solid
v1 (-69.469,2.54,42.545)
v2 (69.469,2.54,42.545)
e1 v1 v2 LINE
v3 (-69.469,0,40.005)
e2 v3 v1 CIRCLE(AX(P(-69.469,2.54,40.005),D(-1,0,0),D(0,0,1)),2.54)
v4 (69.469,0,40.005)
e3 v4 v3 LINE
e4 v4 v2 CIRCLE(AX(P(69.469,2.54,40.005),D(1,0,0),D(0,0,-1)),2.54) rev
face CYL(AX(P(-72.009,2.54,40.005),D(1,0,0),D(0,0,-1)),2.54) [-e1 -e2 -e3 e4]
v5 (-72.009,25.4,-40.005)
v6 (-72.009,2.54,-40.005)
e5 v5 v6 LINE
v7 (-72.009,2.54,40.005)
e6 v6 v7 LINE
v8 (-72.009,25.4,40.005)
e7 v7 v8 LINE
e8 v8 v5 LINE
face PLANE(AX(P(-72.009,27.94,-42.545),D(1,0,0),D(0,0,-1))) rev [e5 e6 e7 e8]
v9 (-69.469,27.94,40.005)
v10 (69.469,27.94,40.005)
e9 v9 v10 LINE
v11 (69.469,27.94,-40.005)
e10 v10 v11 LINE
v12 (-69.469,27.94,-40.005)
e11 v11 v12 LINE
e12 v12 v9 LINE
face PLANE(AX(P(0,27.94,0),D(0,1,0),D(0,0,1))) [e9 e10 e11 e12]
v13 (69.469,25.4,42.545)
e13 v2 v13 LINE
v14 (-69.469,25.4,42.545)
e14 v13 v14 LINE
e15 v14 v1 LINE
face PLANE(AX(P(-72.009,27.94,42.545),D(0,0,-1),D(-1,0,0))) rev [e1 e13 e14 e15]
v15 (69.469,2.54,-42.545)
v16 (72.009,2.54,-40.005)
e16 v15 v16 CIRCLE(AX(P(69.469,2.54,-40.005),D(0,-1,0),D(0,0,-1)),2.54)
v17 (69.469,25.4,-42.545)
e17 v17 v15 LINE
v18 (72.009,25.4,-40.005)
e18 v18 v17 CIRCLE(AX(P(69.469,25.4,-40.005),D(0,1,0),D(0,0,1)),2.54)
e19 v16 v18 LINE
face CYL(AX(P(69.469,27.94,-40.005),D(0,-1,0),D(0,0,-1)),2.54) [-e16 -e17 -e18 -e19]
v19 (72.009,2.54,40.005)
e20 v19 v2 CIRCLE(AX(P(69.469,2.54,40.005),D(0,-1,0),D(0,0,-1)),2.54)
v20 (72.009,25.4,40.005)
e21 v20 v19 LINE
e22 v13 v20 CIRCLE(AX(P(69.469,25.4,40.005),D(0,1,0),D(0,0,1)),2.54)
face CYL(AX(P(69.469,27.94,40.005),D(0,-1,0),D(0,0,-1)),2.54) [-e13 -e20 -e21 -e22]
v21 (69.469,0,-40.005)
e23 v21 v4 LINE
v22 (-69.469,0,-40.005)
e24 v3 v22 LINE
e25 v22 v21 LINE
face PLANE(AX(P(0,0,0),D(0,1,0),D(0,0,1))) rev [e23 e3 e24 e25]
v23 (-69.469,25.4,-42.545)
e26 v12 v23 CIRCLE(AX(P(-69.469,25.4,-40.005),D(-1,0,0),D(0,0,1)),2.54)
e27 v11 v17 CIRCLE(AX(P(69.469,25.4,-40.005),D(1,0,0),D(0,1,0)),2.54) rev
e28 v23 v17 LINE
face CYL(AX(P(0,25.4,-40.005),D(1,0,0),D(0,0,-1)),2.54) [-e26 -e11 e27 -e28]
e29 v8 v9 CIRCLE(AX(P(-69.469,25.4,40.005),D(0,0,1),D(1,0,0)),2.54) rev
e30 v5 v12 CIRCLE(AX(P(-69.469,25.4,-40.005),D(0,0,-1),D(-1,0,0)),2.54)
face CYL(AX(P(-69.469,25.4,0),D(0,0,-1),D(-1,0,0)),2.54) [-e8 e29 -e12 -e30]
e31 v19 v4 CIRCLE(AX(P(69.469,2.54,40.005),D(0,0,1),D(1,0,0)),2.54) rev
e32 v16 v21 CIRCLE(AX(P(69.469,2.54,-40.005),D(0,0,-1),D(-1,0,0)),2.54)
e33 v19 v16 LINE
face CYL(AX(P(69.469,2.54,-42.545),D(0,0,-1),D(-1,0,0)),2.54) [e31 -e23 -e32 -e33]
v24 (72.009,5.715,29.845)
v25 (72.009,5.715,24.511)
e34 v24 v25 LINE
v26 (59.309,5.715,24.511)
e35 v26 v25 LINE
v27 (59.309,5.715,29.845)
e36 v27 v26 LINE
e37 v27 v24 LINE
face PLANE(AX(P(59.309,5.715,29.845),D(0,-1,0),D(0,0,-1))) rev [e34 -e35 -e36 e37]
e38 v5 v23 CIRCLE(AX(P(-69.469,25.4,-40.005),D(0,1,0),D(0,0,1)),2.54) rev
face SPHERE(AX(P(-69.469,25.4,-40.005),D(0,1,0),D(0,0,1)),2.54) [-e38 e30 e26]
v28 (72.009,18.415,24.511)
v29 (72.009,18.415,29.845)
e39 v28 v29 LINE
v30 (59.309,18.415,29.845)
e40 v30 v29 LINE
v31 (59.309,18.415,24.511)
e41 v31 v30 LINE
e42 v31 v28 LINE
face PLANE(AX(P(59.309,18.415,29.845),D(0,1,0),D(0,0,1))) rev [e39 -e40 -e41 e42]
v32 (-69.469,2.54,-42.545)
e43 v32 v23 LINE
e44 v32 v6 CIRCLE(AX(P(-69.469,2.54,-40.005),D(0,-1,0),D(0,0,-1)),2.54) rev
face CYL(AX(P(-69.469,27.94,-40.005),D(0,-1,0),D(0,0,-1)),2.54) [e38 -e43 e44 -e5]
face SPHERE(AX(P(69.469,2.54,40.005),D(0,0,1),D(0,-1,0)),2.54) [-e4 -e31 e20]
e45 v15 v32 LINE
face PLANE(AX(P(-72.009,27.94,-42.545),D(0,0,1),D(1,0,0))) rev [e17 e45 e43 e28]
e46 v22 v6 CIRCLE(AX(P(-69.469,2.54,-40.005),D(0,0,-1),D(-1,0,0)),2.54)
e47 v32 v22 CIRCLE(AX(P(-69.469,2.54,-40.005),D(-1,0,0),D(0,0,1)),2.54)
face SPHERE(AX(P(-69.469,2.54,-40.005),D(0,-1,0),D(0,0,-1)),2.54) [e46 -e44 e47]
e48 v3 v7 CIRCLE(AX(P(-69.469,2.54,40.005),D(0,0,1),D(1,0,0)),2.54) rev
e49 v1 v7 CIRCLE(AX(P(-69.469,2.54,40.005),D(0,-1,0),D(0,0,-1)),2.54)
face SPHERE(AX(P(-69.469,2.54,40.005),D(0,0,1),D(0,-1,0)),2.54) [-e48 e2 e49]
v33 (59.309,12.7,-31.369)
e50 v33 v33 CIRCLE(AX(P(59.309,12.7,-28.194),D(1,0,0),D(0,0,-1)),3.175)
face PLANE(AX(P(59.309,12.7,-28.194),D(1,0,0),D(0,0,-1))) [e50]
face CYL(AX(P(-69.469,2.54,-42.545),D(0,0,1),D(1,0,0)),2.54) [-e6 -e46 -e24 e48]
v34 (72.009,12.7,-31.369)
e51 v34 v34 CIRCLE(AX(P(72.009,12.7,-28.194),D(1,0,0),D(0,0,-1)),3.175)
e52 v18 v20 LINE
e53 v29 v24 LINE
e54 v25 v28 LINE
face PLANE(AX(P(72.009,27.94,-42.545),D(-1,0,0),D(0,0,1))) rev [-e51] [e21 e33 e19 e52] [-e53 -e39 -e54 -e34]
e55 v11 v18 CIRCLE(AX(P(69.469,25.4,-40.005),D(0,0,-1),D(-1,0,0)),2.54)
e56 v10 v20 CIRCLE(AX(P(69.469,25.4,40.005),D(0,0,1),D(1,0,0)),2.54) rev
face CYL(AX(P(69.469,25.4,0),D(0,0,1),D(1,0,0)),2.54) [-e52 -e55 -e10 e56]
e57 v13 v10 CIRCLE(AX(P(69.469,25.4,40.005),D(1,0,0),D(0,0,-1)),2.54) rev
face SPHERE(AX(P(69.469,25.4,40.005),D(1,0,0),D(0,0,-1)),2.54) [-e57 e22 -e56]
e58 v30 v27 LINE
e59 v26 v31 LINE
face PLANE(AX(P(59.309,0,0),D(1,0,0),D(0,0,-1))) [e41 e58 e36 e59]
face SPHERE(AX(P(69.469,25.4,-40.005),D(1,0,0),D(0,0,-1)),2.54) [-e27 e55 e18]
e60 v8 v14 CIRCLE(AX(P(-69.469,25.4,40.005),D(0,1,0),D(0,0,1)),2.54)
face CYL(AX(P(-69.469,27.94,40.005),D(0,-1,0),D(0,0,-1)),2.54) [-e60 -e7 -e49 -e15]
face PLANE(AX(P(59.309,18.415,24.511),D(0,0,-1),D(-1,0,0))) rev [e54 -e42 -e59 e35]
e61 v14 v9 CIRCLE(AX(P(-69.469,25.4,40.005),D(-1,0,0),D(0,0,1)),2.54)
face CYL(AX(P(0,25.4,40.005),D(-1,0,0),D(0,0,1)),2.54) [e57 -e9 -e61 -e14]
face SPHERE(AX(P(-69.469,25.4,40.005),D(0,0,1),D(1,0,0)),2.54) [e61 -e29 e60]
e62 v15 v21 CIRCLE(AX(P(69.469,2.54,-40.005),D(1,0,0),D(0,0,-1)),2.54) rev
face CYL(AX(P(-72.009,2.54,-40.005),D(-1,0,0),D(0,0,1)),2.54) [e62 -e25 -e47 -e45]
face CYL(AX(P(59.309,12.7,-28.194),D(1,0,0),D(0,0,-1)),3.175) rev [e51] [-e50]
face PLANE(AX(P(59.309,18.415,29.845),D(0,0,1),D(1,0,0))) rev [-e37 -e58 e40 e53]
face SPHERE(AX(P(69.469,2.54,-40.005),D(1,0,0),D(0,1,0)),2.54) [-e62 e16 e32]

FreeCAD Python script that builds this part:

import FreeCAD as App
import Part
import Sketcher
from FreeCAD import Vector
Q = App.Units.Quantity


def add_polygon(sketch, points):
    """Adds a closed chain of lines whose ends are joined by coincident constraints."""
    first, n = sketch.GeometryCount, len(points)
    for a, b in zip(points, points[1:] + points[:1]):
        sketch.addGeometry(Part.LineSegment(App.Vector(*a, 0), App.Vector(*b, 0)), False)
    for i in range(n):
        sketch.addConstraint(Sketcher.Constraint("Coincident", first + i, 2, first + (i + 1) % n, 1))

doc = App.newDocument("Part")
params = doc.addObject("Spreadsheet::Sheet", "Params")
for row, (alias, value) in enumerate([
    ("sketch1_width", "5.67 in"),
    ("sketch1_height", "3.35 in"),
    ("pad1_length", "1.1 in"),
    ("fillet_radius", "0.1 in"),
    ("sketch2_diameter", "0.25 in"),
    ("sketch2_width", "0.5 in"),
    ("sketch2_height", "0.21 in"),
    ("pocket1_length", "0.5 in"),
], start=1):
    params.set(f"A{row}", alias)
    params.set(f"B{row}", "=" + value)
    params.setAlias(f"B{row}", alias)

body = doc.addObject("PartDesign::Body", "Body")

# Sketch on XZ plane
sketch1 = body.newObject("Sketcher::SketchObject", "Sketch")
sketch1.AttachmentSupport = (doc.getObject("XZ_Plane"), [""])
sketch1.MapMode = "FlatFace"
add_polygon(sketch1, [(-72, -43), (-72, 43), (72, 43), (72, -43)])  # lines 0-3
sketch1.addConstraint([
    Sketcher.Constraint("Vertical", 0),
    Sketcher.Constraint("Horizontal", 1),
    Sketcher.Constraint("Vertical", 2),
    Sketcher.Constraint("Horizontal", 3),
    Sketcher.Constraint("Symmetric", 0, 2, 2, 2, -1, 1),
    Sketcher.Constraint("DistanceX", 1, 1, 1, 2, Q("5.67 in")),
    Sketcher.Constraint("DistanceY", 0, 1, 0, 2, Q("3.35 in")),
])
sketch1.setExpression("Constraints[9]", "Params.sketch1_width")
sketch1.setExpression("Constraints[10]", "Params.sketch1_height")
pad1 = body.newObject("PartDesign::Pad", "Pad")
pad1.Profile = sketch1
pad1.setExpression("Length", "Params.pad1_length")
pad1.Reversed = True
doc.recompute()

fillet = body.newObject("PartDesign::Fillet", "Fillet")
fillet.Base = (pad1, ["Edge1"])
fillet.UseAllEdges = True
fillet.setExpression("Radius", "Params.fillet_radius")

# Sketch on YZ plane
sketch2 = body.newObject("Sketcher::SketchObject", "Sketch001")
sketch2.AttachmentSupport = (doc.getObject("YZ_Plane"), [""])
sketch2.MapMode = "FlatFace"
sketch2.AttachmentOffset = App.Placement(Vector(0, 0, 2.835 * 25.4), App.Rotation())
sketch2.addGeometry(Part.Circle(Vector(12.7, -28.2, 0), Vector(0, 0, 1), 3.2), False)  # 0
add_polygon(sketch2, [(18.4, 29.8), (5.7, 29.8), (5.7, 24.5), (18.4, 24.5)])  # lines 1-4
sketch2.addConstraint([
    Sketcher.Constraint("Horizontal", 1),
    Sketcher.Constraint("Vertical", 2),
    Sketcher.Constraint("Horizontal", 3),
    Sketcher.Constraint("Vertical", 4),
    Sketcher.Constraint("Diameter", 0, Q("0.25 in")),
    Sketcher.Constraint("DistanceX", 1, 2, 1, 1, Q("0.5 in")),
    Sketcher.Constraint("DistanceY", 2, 2, 2, 1, Q("0.21 in")),
    Sketcher.Constraint("DistanceX", -1, 1, 0, 3, Q("0.5 in")),
    Sketcher.Constraint("DistanceY", 0, 3, -1, 1, Q("1.11 in")),
    Sketcher.Constraint("DistanceX", -1, 1, 1, 2, Q("0.225 in")),
    Sketcher.Constraint("DistanceY", -1, 1, 1, 2, Q("1.175 in")),
])
sketch2.setExpression("Constraints[8]", "Params.sketch2_diameter")
sketch2.setExpression("Constraints[9]", "Params.sketch2_width")
sketch2.setExpression("Constraints[10]", "Params.sketch2_height")
pocket1 = body.newObject("PartDesign::Pocket", "Pocket")
pocket1.Profile = sketch2
pocket1.setExpression("Length", "Params.pocket1_length")

doc.recompute()
